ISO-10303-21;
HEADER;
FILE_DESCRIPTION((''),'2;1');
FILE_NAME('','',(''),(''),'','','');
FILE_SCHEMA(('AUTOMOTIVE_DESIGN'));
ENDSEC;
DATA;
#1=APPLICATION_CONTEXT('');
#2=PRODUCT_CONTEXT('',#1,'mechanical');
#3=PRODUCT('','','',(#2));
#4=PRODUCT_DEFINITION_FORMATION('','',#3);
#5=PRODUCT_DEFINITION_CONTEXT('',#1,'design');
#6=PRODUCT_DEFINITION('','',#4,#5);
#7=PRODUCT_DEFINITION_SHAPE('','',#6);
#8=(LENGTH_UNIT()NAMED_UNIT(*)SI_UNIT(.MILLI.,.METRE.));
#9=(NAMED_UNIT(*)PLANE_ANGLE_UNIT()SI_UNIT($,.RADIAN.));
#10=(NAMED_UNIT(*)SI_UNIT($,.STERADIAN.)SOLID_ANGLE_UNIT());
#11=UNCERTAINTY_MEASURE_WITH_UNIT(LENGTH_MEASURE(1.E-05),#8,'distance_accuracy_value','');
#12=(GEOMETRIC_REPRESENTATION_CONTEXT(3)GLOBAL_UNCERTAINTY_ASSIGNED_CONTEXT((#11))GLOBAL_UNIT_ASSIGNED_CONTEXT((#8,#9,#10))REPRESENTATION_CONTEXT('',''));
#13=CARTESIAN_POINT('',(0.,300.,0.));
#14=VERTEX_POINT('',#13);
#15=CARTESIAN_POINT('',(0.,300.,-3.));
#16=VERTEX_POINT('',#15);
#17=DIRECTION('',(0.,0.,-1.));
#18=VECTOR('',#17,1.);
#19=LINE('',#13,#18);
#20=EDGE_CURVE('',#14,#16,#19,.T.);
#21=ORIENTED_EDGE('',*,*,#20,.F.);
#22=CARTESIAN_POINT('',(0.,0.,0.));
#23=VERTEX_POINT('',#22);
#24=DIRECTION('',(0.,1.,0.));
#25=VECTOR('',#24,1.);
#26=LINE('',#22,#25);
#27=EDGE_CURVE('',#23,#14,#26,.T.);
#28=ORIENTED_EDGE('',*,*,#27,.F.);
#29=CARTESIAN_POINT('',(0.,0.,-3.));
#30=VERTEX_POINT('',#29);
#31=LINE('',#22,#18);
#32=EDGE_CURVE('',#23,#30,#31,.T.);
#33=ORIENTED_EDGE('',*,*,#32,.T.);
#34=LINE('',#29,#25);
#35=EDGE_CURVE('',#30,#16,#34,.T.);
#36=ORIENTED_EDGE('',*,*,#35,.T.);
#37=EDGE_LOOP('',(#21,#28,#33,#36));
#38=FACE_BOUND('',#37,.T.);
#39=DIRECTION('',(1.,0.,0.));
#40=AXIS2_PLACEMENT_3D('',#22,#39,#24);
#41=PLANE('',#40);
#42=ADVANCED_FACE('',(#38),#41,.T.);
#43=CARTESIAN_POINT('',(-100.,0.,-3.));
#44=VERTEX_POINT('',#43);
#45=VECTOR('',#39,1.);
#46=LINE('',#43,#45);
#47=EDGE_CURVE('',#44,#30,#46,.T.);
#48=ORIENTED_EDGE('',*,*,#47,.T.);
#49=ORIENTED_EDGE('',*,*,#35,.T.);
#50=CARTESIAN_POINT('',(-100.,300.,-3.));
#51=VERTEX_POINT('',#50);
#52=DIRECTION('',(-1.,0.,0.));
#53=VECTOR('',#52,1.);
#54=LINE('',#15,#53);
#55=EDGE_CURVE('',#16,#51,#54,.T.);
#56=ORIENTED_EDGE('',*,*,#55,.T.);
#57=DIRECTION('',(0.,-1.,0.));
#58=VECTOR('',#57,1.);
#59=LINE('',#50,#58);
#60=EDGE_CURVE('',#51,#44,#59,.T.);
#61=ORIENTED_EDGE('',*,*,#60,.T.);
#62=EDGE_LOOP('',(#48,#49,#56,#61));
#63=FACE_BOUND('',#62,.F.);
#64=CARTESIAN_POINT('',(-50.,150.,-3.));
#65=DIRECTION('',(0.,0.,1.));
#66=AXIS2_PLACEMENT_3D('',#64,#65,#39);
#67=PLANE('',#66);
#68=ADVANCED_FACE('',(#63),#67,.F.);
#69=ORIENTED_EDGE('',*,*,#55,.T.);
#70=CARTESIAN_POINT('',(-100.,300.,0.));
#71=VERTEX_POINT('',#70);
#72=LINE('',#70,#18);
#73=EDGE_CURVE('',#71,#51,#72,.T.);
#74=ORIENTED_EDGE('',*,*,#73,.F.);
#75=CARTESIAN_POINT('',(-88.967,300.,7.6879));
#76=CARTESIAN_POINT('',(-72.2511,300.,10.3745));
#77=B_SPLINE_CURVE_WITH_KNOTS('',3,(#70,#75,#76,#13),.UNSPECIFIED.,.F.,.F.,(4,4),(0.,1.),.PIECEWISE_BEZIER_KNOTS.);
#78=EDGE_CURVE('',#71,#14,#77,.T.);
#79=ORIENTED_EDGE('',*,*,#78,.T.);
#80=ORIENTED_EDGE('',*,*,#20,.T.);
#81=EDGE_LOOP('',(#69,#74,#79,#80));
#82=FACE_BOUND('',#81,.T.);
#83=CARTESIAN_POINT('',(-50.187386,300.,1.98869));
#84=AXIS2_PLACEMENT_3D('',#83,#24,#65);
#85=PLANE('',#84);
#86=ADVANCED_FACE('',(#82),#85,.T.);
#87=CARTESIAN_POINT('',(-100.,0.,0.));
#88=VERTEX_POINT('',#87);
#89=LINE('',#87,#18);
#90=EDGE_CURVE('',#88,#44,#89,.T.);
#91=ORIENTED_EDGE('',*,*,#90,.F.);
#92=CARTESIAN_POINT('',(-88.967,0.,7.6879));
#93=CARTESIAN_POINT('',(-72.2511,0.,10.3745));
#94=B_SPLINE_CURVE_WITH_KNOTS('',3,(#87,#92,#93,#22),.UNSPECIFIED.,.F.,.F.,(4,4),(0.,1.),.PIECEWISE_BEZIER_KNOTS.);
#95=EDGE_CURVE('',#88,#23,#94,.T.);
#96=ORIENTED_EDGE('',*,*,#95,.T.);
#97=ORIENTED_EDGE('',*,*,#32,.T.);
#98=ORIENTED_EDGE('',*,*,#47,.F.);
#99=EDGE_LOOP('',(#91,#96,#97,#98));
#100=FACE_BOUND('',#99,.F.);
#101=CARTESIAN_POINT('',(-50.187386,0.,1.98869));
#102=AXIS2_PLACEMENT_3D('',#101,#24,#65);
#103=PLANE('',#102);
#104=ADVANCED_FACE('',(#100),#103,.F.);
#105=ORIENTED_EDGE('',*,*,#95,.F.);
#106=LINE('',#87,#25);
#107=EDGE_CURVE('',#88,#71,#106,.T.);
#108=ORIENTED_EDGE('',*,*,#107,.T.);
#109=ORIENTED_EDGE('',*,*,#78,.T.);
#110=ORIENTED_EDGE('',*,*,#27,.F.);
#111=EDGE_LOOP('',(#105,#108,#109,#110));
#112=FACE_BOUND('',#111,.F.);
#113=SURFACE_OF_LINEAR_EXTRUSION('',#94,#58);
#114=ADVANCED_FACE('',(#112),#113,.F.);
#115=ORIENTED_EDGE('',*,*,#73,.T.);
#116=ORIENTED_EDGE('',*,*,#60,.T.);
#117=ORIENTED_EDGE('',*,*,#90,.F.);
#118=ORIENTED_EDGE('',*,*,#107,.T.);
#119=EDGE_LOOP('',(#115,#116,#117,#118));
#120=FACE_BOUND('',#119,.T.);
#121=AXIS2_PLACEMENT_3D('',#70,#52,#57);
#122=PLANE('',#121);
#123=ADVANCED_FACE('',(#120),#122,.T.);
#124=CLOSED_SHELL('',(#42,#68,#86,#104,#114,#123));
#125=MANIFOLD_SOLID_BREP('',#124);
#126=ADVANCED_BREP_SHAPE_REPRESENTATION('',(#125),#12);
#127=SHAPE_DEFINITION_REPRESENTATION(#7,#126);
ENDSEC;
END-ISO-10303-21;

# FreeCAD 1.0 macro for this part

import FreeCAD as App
import Part
import Sketcher

V = App.Vector
Q = App.Units.Quantity


def add_polygon(sketch, points):
    """Adds a closed chain of lines whose ends are joined by coincident constraints."""
    first, n = sketch.GeometryCount, len(points)
    for a, b in zip(points, points[1:] + points[:1]):
        sketch.addGeometry(Part.LineSegment(App.Vector(*a, 0), App.Vector(*b, 0)), False)
    for i in range(n):
        sketch.addConstraint(Sketcher.Constraint("Coincident", first + i, 2, first + (i + 1) % n, 1))

doc = App.newDocument("Part")
body = doc.addObject("PartDesign::Body", "Body")

# Sketch on XZ plane
sketch1 = body.newObject("Sketcher::SketchObject", "Sketch")
sketch1.AttachmentSupport = (doc.getObject("XZ_Plane"), [""])
sketch1.MapMode = "FlatFace"
sketch1.addGeometry(Part.BSplineCurve([V(-100, 0, 0), V(-88.967, 7.6879, 0), V(-72.2511, 10.3745, 0), V(0, 0, 0)], [4, 4], [0, 1], False, 3, [1, 1, 1, 1], False), False)
sketch1.addGeometry(Part.LineSegment(V(-100, 0, 0), V(0, 0, 0)), False)
sketch1.addConstraint(Sketcher.Constraint("Block", 0))
sketch1.addConstraint(Sketcher.Constraint("Coincident", 0, 1, 1, 1))
sketch1.addConstraint(Sketcher.Constraint("Coincident", 1, 2, 0, 2))
pad1 = body.newObject("PartDesign::Pad", "Pad")
pad1.Profile = sketch1
pad1.Length = 300
pad1.Reversed = True

# Sketch on XY plane
sketch2 = body.newObject("Sketcher::SketchObject", "Sketch001")
sketch2.AttachmentSupport = (doc.getObject("XY_Plane"), [""])
sketch2.MapMode = "FlatFace"
add_polygon(sketch2, [(-100, 0), (-100, 300), (0, 300), (0, 0)])  # lines 0-3
sketch2.addConstraint(Sketcher.Constraint("Vertical", 0))
sketch2.addConstraint(Sketcher.Constraint("Horizontal", 1))
sketch2.addConstraint(Sketcher.Constraint("Vertical", 2))
sketch2.addConstraint(Sketcher.Constraint("Horizontal", 3))
sketch2.addConstraint(Sketcher.Constraint("Coincident", 2, 2, -1, 1))
sketch2.addConstraint(Sketcher.Constraint("DistanceX", 1, 1, 1, 2, Q("100 mm")))
sketch2.addConstraint(Sketcher.Constraint("DistanceY", 0, 1, 0, 2, Q("300 mm")))
pad2 = body.newObject("PartDesign::Pad", "Pad001")
pad2.Profile = sketch2
pad2.Length = 3
pad2.Reversed = True

doc.recompute()
